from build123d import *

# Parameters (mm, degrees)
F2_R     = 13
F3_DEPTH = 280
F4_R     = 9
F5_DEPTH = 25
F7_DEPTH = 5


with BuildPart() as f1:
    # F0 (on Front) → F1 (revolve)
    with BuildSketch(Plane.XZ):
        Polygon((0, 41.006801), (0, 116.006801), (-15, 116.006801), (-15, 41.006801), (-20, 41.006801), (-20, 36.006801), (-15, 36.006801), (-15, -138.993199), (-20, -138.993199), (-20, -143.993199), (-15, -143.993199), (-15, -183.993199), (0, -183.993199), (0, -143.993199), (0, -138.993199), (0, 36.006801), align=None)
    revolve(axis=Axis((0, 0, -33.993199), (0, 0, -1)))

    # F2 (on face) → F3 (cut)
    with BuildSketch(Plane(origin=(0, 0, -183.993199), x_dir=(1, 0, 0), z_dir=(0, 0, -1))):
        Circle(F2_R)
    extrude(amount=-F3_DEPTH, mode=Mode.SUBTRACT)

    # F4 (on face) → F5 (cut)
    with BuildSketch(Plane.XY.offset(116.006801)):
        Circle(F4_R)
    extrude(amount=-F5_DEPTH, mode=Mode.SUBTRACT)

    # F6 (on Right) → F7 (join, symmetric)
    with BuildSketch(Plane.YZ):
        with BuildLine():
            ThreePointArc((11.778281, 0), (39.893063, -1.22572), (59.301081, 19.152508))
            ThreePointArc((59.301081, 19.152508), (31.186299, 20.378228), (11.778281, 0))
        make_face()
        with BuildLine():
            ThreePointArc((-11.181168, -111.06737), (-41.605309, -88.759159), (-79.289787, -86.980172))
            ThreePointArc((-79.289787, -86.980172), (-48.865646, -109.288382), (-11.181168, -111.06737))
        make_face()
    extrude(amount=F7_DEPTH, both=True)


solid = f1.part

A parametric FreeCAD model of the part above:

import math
import FreeCAD as App
import Part
import Sketcher
Q = App.Units.Quantity

doc = App.newDocument("Part")
body = doc.addObject("PartDesign::Body", "Body")

# Sketch on XZ plane
sketch1 = doc.addObject("Sketcher::SketchObject", "Sketch")
body.addObject(sketch1)
sketch1.AttachmentSupport = (doc.XZ_Plane, [""])
sketch1.MapMode = "FlatFace"
sketch1.addGeometry([
    Part.LineSegment(App.Vector(0, 116, 0), App.Vector(-15, 116, 0)),  # 0
    Part.LineSegment(App.Vector(-15, 116, 0), App.Vector(-15, 41, 0)),  # 1
    Part.LineSegment(App.Vector(-15, 41, 0), App.Vector(-20, 41, 0)),  # 2
    Part.LineSegment(App.Vector(-20, 41, 0), App.Vector(-20, 36, 0)),  # 3
    Part.LineSegment(App.Vector(-20, 36, 0), App.Vector(-15, 36, 0)),  # 4
    Part.LineSegment(App.Vector(-15, 36, 0), App.Vector(-15, -139, 0)),  # 5
    Part.LineSegment(App.Vector(-15, -139, 0), App.Vector(-20, -139, 0)),  # 6
    Part.LineSegment(App.Vector(-20, -139, 0), App.Vector(-20, -144, 0)),  # 7
    Part.LineSegment(App.Vector(-20, -144, 0), App.Vector(-15, -144, 0)),  # 8
    Part.LineSegment(App.Vector(-15, -144, 0), App.Vector(-15, -184, 0)),  # 9
    Part.LineSegment(App.Vector(-15, -184, 0), App.Vector(0, -184, 0)),  # 10
    Part.LineSegment(App.Vector(0, -184, 0), App.Vector(0, 116, 0)),  # 11
], False)
sketch1.addConstraint([
    Sketcher.Constraint("Coincident", 0, 2, 1, 1),
    Sketcher.Constraint("Coincident", 1, 2, 2, 1),
    Sketcher.Constraint("Coincident", 2, 2, 3, 1),
    Sketcher.Constraint("Coincident", 3, 2, 4, 1),
    Sketcher.Constraint("Coincident", 4, 2, 5, 1),
    Sketcher.Constraint("Coincident", 5, 2, 6, 1),
    Sketcher.Constraint("Coincident", 6, 2, 7, 1),
    Sketcher.Constraint("Coincident", 7, 2, 8, 1),
    Sketcher.Constraint("Coincident", 8, 2, 9, 1),
    Sketcher.Constraint("Coincident", 9, 2, 10, 1),
    Sketcher.Constraint("Coincident", 10, 2, 11, 1),
    Sketcher.Constraint("Coincident", 11, 2, 0, 1),
    Sketcher.Constraint("Horizontal", 0),
    Sketcher.Constraint("Vertical", 1),
    Sketcher.Constraint("Horizontal", 2),
    Sketcher.Constraint("Vertical", 3),
    Sketcher.Constraint("Horizontal", 4),
    Sketcher.Constraint("Vertical", 5),
    Sketcher.Constraint("Horizontal", 6),
    Sketcher.Constraint("Vertical", 7),
    Sketcher.Constraint("Horizontal", 8),
    Sketcher.Constraint("Vertical", 9),
    Sketcher.Constraint("Horizontal", 10),
    Sketcher.Constraint("Vertical", 11),
    Sketcher.Constraint("PointOnObject", 10, 2, -2),
    Sketcher.Constraint("Vertical", 1, 2, 4, 2),
    Sketcher.Constraint("Vertical", 3, 2, 6, 2),
    Sketcher.Constraint("Vertical", 5, 2, 8, 2),
    Sketcher.Constraint("Equal", 8, 3),
    Sketcher.Constraint("Equal", 3, 7),
    Sketcher.Constraint("DistanceX", 0, 2, 0, 1, Q("15 mm")),
    Sketcher.Constraint("DistanceX", 2, 2, 2, 1, Q("5 mm")),
    Sketcher.Constraint("DistanceY", 1, 2, 1, 1, Q("75 mm")),
    Sketcher.Constraint("DistanceY", 5, 2, 5, 1, Q("175 mm")),
    Sketcher.Constraint("DistanceY", 9, 2, 9, 1, Q("40 mm")),
    Sketcher.Constraint("DistanceY", -1, 1, 0, 2, Q("116.006801 mm")),
])
revolution = doc.addObject("PartDesign::Revolution", "Revolution")
body.addObject(revolution)
revolution.Profile = sketch1
revolution.ReferenceAxis = (sketch1, ["V_Axis"])
revolution.Angle = 360

# Sketch on XY plane
sketch2 = doc.addObject("Sketcher::SketchObject", "Sketch001")
body.addObject(sketch2)
sketch2.AttachmentSupport = (doc.XY_Plane, [""])
sketch2.MapMode = "FlatFace"
sketch2.AttachmentOffset = App.Placement(App.Vector(0, 0, -183.993199), App.Rotation())
sketch2.addGeometry(Part.Circle(App.Vector(0, 0, 0), App.Vector(0, 0, 1), 13), False)
sketch2.addConstraint([
    Sketcher.Constraint("Coincident", 0, 3, -1, 1),
    Sketcher.Constraint("Diameter", 0, Q("26 mm")),
])
pocket1 = doc.addObject("PartDesign::Pocket", "Pocket")
body.addObject(pocket1)
pocket1.Profile = sketch2
pocket1.Length = 280
pocket1.Reversed = True

# Sketch on XY plane
sketch3 = doc.addObject("Sketcher::SketchObject", "Sketch002")
body.addObject(sketch3)
sketch3.AttachmentSupport = (doc.XY_Plane, [""])
sketch3.MapMode = "FlatFace"
sketch3.AttachmentOffset = App.Placement(App.Vector(0, 0, 116.006801), App.Rotation())
sketch3.addGeometry(Part.Circle(App.Vector(0, 0, 0), App.Vector(0, 0, 1), 9), False)
sketch3.addConstraint([
    Sketcher.Constraint("Coincident", 0, 3, -1, 1),
    Sketcher.Constraint("Diameter", 0, Q("18 mm")),
])
pocket2 = doc.addObject("PartDesign::Pocket", "Pocket001")
body.addObject(pocket2)
pocket2.Profile = sketch3
pocket2.Length = 25

# Sketch on YZ plane
sketch4 = doc.addObject("Sketcher::SketchObject", "Sketch003")
body.addObject(sketch4)
sketch4.AttachmentSupport = (doc.YZ_Plane, [""])
sketch4.MapMode = "FlatFace"
sketch4.addGeometry([
    Part.ArcOfCircle(Part.Circle(App.Vector(27, 30, 0), App.Vector(0, 0, 1), 34), math.radians(-117), math.radians(-19)),
    Part.ArcOfCircle(Part.Circle(App.Vector(44, -11, 0), App.Vector(0, 0, 1), 34), math.radians(63), math.radians(161)),
    Part.ArcOfCircle(Part.Circle(App.Vector(-63, -150, 0), App.Vector(0, 0, 1), 65), math.radians(37), math.radians(104)),
    Part.ArcOfCircle(Part.Circle(App.Vector(-27, -48, 0), App.Vector(0, 0, 1), 65), math.radians(-143), math.radians(-76)),
], False)
sketch4.addConstraint([
    Sketcher.Constraint("Coincident", 0, 1, 1, 2),
    Sketcher.Constraint("Coincident", 1, 1, 0, 2),
    Sketcher.Constraint("Coincident", 2, 1, 3, 2),
    Sketcher.Constraint("Coincident", 3, 1, 2, 2),
    Sketcher.Constraint("Equal", 0, 1),
    Sketcher.Constraint("PointOnObject", 0, 1, -1),
    Sketcher.Constraint("Radius", 0, Q("33.999999 mm")),
    Sketcher.Constraint("Radius", 2, Q("65.362493 mm")),
    Sketcher.Constraint("Radius", 3, Q("65.362498 mm")),
    Sketcher.Constraint("DistanceX", 0, 1, 1, 1, Q("47.5228 mm")),
    Sketcher.Constraint("DistanceX", 2, 3, 2, 1, Q("52.217401 mm")),
    Sketcher.Constraint("DistanceY", 2, 3, 3, 1, Q("63.401299 mm")),
    Sketcher.Constraint("DistanceY", -1, 1, 0, 3, Q("30.30957 mm")),
    Sketcher.Constraint("DistanceX", 2, 3, -1, 1, Q("63.398569 mm")),
    Sketcher.Constraint("DistanceY", 2, 3, -1, 1, Q("150.381471 mm")),
    Sketcher.Constraint("DistanceX", -1, 1, 0, 1, Q("11.778281 mm")),
])
pad1 = doc.addObject("PartDesign::Pad", "Pad")
body.addObject(pad1)
pad1.Profile = sketch4
pad1.Length = 10
pad1.Midplane = True

doc.recompute()
